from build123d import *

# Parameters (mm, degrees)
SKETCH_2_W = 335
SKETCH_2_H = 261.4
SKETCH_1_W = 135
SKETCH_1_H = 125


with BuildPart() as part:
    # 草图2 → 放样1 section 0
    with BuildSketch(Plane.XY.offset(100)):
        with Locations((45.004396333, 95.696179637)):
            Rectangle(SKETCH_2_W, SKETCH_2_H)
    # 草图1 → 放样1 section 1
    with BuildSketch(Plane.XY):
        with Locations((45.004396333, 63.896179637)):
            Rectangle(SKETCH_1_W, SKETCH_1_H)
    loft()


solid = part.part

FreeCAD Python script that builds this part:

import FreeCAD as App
import Part
import Sketcher

V = App.Vector


def add_polygon(sketch, points):
    """Adds a closed chain of lines whose ends are joined by coincident constraints."""
    first, n = sketch.GeometryCount, len(points)
    for a, b in zip(points, points[1:] + points[:1]):
        sketch.addGeometry(Part.LineSegment(App.Vector(*a, 0), App.Vector(*b, 0)), False)
    for i in range(n):
        sketch.addConstraint(Sketcher.Constraint("Coincident", first + i, 2, first + (i + 1) % n, 1))

doc = App.newDocument("Part")
body = doc.addObject("PartDesign::Body", "Body")

# Sketch on XY plane
sketch1 = body.newObject("Sketcher::SketchObject", "Sketch")
sketch1.AttachmentSupport = (doc.getObject("XY_Plane"), [""])
sketch1.MapMode = "FlatFace"
sketch1.AttachmentOffset = App.Placement(V(0, 0, 100), App.Rotation())
add_polygon(sketch1, [(-122, 226), (-122, -35), (213, -35), (213, 226)])  # lines 0-3
sketch1.addConstraint([
    Sketcher.Constraint("Vertical", 0),
    Sketcher.Constraint("Horizontal", 1),
    Sketcher.Constraint("Vertical", 2),
    Sketcher.Constraint("Horizontal", 3),
    Sketcher.Constraint("DistanceX", 1, 1, 1, 2, 335.0),
    Sketcher.Constraint("DistanceY", 0, 2, 0, 1, 261.4),
    Sketcher.Constraint("DistanceY", 0, 2, -1, 1, 35.00382),
    Sketcher.Constraint("DistanceX", 0, 2, -1, 1, 122.495604),
])

# Sketch on XY plane
sketch2 = body.newObject("Sketcher::SketchObject", "Sketch001")
sketch2.AttachmentSupport = (doc.getObject("XY_Plane"), [""])
sketch2.MapMode = "FlatFace"
add_polygon(sketch2, [(-22, 126), (-22, 1), (113, 1), (113, 126)])  # lines 0-3
sketch2.addConstraint([
    Sketcher.Constraint("Vertical", 0),
    Sketcher.Constraint("Horizontal", 1),
    Sketcher.Constraint("Vertical", 2),
    Sketcher.Constraint("Horizontal", 3),
    Sketcher.Constraint("DistanceX", 1, 1, 1, 2, 135.0),
    Sketcher.Constraint("DistanceY", 0, 2, 0, 1, 125.0),
    Sketcher.Constraint("DistanceY", -1, 1, 0, 2, 1.39618),
    Sketcher.Constraint("DistanceX", 0, 2, -1, 1, 22.495604),
])

additiveloft = body.newObject("PartDesign::AdditiveLoft", "AdditiveLoft")
additiveloft.Profile = sketch1
additiveloft.Sections = [sketch2]

doc.recompute()
